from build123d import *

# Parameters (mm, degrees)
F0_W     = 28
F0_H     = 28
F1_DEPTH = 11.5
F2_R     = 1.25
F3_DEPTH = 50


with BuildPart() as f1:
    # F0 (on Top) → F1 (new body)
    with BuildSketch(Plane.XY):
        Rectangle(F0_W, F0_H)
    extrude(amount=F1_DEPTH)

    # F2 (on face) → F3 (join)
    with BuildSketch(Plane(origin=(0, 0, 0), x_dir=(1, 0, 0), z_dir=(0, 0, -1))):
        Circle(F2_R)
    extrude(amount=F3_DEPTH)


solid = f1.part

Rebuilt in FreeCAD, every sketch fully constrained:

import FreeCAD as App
import Part
import Sketcher

doc = App.newDocument("Part")
body = doc.addObject("PartDesign::Body", "Body")

sketch1 = body.newObject("Sketcher::SketchObject", "Sketch")
sketch1.AttachmentSupport = (doc.getObject("XY_Plane"), [""])
sketch1.MapMode = "FlatFace"
sketch1.addGeometry([
    Part.LineSegment(App.Vector(-14, 14, 0), App.Vector(-14, -14, 0)),
    Part.LineSegment(App.Vector(-14, -14, 0), App.Vector(14, -14, 0)),
    Part.LineSegment(App.Vector(14, -14, 0), App.Vector(14, 14, 0)),
    Part.LineSegment(App.Vector(14, 14, 0), App.Vector(-14, 14, 0)),
], False)
sketch1.addConstraint([
    Sketcher.Constraint("Coincident", 0, 2, 1, 1),
    Sketcher.Constraint("Coincident", 1, 2, 2, 1),
    Sketcher.Constraint("Coincident", 2, 2, 3, 1),
    Sketcher.Constraint("Coincident", 3, 2, 0, 1),
    Sketcher.Constraint("Vertical", 0),
    Sketcher.Constraint("Horizontal", 1),
    Sketcher.Constraint("Vertical", 2),
    Sketcher.Constraint("Horizontal", 3),
    Sketcher.Constraint("Symmetric", 0, 2, 2, 2, -1, 1),
    Sketcher.Constraint("Equal", 3, 0),
    Sketcher.Constraint("DistanceX", 1, 1, 1, 2, 28.0),
])
pad1 = body.newObject("PartDesign::Pad", "Pad")
pad1.Profile = sketch1
pad1.Length = 11.5

sketch2 = body.newObject("Sketcher::SketchObject", "Sketch001")
sketch2.AttachmentSupport = (doc.getObject("XY_Plane"), [""])
sketch2.MapMode = "FlatFace"
sketch2.addGeometry(Part.Circle(App.Vector(0, 0, 0), App.Vector(0, 0, 1), 1.25), False)
sketch2.addConstraint([
    Sketcher.Constraint("Coincident", 0, 3, -1, 1),
    Sketcher.Constraint("Diameter", 0, 2.5),
])
pad2 = body.newObject("PartDesign::Pad", "Pad001")
pad2.Profile = sketch2
pad2.Length = 50
pad2.Reversed = True

doc.recompute()
